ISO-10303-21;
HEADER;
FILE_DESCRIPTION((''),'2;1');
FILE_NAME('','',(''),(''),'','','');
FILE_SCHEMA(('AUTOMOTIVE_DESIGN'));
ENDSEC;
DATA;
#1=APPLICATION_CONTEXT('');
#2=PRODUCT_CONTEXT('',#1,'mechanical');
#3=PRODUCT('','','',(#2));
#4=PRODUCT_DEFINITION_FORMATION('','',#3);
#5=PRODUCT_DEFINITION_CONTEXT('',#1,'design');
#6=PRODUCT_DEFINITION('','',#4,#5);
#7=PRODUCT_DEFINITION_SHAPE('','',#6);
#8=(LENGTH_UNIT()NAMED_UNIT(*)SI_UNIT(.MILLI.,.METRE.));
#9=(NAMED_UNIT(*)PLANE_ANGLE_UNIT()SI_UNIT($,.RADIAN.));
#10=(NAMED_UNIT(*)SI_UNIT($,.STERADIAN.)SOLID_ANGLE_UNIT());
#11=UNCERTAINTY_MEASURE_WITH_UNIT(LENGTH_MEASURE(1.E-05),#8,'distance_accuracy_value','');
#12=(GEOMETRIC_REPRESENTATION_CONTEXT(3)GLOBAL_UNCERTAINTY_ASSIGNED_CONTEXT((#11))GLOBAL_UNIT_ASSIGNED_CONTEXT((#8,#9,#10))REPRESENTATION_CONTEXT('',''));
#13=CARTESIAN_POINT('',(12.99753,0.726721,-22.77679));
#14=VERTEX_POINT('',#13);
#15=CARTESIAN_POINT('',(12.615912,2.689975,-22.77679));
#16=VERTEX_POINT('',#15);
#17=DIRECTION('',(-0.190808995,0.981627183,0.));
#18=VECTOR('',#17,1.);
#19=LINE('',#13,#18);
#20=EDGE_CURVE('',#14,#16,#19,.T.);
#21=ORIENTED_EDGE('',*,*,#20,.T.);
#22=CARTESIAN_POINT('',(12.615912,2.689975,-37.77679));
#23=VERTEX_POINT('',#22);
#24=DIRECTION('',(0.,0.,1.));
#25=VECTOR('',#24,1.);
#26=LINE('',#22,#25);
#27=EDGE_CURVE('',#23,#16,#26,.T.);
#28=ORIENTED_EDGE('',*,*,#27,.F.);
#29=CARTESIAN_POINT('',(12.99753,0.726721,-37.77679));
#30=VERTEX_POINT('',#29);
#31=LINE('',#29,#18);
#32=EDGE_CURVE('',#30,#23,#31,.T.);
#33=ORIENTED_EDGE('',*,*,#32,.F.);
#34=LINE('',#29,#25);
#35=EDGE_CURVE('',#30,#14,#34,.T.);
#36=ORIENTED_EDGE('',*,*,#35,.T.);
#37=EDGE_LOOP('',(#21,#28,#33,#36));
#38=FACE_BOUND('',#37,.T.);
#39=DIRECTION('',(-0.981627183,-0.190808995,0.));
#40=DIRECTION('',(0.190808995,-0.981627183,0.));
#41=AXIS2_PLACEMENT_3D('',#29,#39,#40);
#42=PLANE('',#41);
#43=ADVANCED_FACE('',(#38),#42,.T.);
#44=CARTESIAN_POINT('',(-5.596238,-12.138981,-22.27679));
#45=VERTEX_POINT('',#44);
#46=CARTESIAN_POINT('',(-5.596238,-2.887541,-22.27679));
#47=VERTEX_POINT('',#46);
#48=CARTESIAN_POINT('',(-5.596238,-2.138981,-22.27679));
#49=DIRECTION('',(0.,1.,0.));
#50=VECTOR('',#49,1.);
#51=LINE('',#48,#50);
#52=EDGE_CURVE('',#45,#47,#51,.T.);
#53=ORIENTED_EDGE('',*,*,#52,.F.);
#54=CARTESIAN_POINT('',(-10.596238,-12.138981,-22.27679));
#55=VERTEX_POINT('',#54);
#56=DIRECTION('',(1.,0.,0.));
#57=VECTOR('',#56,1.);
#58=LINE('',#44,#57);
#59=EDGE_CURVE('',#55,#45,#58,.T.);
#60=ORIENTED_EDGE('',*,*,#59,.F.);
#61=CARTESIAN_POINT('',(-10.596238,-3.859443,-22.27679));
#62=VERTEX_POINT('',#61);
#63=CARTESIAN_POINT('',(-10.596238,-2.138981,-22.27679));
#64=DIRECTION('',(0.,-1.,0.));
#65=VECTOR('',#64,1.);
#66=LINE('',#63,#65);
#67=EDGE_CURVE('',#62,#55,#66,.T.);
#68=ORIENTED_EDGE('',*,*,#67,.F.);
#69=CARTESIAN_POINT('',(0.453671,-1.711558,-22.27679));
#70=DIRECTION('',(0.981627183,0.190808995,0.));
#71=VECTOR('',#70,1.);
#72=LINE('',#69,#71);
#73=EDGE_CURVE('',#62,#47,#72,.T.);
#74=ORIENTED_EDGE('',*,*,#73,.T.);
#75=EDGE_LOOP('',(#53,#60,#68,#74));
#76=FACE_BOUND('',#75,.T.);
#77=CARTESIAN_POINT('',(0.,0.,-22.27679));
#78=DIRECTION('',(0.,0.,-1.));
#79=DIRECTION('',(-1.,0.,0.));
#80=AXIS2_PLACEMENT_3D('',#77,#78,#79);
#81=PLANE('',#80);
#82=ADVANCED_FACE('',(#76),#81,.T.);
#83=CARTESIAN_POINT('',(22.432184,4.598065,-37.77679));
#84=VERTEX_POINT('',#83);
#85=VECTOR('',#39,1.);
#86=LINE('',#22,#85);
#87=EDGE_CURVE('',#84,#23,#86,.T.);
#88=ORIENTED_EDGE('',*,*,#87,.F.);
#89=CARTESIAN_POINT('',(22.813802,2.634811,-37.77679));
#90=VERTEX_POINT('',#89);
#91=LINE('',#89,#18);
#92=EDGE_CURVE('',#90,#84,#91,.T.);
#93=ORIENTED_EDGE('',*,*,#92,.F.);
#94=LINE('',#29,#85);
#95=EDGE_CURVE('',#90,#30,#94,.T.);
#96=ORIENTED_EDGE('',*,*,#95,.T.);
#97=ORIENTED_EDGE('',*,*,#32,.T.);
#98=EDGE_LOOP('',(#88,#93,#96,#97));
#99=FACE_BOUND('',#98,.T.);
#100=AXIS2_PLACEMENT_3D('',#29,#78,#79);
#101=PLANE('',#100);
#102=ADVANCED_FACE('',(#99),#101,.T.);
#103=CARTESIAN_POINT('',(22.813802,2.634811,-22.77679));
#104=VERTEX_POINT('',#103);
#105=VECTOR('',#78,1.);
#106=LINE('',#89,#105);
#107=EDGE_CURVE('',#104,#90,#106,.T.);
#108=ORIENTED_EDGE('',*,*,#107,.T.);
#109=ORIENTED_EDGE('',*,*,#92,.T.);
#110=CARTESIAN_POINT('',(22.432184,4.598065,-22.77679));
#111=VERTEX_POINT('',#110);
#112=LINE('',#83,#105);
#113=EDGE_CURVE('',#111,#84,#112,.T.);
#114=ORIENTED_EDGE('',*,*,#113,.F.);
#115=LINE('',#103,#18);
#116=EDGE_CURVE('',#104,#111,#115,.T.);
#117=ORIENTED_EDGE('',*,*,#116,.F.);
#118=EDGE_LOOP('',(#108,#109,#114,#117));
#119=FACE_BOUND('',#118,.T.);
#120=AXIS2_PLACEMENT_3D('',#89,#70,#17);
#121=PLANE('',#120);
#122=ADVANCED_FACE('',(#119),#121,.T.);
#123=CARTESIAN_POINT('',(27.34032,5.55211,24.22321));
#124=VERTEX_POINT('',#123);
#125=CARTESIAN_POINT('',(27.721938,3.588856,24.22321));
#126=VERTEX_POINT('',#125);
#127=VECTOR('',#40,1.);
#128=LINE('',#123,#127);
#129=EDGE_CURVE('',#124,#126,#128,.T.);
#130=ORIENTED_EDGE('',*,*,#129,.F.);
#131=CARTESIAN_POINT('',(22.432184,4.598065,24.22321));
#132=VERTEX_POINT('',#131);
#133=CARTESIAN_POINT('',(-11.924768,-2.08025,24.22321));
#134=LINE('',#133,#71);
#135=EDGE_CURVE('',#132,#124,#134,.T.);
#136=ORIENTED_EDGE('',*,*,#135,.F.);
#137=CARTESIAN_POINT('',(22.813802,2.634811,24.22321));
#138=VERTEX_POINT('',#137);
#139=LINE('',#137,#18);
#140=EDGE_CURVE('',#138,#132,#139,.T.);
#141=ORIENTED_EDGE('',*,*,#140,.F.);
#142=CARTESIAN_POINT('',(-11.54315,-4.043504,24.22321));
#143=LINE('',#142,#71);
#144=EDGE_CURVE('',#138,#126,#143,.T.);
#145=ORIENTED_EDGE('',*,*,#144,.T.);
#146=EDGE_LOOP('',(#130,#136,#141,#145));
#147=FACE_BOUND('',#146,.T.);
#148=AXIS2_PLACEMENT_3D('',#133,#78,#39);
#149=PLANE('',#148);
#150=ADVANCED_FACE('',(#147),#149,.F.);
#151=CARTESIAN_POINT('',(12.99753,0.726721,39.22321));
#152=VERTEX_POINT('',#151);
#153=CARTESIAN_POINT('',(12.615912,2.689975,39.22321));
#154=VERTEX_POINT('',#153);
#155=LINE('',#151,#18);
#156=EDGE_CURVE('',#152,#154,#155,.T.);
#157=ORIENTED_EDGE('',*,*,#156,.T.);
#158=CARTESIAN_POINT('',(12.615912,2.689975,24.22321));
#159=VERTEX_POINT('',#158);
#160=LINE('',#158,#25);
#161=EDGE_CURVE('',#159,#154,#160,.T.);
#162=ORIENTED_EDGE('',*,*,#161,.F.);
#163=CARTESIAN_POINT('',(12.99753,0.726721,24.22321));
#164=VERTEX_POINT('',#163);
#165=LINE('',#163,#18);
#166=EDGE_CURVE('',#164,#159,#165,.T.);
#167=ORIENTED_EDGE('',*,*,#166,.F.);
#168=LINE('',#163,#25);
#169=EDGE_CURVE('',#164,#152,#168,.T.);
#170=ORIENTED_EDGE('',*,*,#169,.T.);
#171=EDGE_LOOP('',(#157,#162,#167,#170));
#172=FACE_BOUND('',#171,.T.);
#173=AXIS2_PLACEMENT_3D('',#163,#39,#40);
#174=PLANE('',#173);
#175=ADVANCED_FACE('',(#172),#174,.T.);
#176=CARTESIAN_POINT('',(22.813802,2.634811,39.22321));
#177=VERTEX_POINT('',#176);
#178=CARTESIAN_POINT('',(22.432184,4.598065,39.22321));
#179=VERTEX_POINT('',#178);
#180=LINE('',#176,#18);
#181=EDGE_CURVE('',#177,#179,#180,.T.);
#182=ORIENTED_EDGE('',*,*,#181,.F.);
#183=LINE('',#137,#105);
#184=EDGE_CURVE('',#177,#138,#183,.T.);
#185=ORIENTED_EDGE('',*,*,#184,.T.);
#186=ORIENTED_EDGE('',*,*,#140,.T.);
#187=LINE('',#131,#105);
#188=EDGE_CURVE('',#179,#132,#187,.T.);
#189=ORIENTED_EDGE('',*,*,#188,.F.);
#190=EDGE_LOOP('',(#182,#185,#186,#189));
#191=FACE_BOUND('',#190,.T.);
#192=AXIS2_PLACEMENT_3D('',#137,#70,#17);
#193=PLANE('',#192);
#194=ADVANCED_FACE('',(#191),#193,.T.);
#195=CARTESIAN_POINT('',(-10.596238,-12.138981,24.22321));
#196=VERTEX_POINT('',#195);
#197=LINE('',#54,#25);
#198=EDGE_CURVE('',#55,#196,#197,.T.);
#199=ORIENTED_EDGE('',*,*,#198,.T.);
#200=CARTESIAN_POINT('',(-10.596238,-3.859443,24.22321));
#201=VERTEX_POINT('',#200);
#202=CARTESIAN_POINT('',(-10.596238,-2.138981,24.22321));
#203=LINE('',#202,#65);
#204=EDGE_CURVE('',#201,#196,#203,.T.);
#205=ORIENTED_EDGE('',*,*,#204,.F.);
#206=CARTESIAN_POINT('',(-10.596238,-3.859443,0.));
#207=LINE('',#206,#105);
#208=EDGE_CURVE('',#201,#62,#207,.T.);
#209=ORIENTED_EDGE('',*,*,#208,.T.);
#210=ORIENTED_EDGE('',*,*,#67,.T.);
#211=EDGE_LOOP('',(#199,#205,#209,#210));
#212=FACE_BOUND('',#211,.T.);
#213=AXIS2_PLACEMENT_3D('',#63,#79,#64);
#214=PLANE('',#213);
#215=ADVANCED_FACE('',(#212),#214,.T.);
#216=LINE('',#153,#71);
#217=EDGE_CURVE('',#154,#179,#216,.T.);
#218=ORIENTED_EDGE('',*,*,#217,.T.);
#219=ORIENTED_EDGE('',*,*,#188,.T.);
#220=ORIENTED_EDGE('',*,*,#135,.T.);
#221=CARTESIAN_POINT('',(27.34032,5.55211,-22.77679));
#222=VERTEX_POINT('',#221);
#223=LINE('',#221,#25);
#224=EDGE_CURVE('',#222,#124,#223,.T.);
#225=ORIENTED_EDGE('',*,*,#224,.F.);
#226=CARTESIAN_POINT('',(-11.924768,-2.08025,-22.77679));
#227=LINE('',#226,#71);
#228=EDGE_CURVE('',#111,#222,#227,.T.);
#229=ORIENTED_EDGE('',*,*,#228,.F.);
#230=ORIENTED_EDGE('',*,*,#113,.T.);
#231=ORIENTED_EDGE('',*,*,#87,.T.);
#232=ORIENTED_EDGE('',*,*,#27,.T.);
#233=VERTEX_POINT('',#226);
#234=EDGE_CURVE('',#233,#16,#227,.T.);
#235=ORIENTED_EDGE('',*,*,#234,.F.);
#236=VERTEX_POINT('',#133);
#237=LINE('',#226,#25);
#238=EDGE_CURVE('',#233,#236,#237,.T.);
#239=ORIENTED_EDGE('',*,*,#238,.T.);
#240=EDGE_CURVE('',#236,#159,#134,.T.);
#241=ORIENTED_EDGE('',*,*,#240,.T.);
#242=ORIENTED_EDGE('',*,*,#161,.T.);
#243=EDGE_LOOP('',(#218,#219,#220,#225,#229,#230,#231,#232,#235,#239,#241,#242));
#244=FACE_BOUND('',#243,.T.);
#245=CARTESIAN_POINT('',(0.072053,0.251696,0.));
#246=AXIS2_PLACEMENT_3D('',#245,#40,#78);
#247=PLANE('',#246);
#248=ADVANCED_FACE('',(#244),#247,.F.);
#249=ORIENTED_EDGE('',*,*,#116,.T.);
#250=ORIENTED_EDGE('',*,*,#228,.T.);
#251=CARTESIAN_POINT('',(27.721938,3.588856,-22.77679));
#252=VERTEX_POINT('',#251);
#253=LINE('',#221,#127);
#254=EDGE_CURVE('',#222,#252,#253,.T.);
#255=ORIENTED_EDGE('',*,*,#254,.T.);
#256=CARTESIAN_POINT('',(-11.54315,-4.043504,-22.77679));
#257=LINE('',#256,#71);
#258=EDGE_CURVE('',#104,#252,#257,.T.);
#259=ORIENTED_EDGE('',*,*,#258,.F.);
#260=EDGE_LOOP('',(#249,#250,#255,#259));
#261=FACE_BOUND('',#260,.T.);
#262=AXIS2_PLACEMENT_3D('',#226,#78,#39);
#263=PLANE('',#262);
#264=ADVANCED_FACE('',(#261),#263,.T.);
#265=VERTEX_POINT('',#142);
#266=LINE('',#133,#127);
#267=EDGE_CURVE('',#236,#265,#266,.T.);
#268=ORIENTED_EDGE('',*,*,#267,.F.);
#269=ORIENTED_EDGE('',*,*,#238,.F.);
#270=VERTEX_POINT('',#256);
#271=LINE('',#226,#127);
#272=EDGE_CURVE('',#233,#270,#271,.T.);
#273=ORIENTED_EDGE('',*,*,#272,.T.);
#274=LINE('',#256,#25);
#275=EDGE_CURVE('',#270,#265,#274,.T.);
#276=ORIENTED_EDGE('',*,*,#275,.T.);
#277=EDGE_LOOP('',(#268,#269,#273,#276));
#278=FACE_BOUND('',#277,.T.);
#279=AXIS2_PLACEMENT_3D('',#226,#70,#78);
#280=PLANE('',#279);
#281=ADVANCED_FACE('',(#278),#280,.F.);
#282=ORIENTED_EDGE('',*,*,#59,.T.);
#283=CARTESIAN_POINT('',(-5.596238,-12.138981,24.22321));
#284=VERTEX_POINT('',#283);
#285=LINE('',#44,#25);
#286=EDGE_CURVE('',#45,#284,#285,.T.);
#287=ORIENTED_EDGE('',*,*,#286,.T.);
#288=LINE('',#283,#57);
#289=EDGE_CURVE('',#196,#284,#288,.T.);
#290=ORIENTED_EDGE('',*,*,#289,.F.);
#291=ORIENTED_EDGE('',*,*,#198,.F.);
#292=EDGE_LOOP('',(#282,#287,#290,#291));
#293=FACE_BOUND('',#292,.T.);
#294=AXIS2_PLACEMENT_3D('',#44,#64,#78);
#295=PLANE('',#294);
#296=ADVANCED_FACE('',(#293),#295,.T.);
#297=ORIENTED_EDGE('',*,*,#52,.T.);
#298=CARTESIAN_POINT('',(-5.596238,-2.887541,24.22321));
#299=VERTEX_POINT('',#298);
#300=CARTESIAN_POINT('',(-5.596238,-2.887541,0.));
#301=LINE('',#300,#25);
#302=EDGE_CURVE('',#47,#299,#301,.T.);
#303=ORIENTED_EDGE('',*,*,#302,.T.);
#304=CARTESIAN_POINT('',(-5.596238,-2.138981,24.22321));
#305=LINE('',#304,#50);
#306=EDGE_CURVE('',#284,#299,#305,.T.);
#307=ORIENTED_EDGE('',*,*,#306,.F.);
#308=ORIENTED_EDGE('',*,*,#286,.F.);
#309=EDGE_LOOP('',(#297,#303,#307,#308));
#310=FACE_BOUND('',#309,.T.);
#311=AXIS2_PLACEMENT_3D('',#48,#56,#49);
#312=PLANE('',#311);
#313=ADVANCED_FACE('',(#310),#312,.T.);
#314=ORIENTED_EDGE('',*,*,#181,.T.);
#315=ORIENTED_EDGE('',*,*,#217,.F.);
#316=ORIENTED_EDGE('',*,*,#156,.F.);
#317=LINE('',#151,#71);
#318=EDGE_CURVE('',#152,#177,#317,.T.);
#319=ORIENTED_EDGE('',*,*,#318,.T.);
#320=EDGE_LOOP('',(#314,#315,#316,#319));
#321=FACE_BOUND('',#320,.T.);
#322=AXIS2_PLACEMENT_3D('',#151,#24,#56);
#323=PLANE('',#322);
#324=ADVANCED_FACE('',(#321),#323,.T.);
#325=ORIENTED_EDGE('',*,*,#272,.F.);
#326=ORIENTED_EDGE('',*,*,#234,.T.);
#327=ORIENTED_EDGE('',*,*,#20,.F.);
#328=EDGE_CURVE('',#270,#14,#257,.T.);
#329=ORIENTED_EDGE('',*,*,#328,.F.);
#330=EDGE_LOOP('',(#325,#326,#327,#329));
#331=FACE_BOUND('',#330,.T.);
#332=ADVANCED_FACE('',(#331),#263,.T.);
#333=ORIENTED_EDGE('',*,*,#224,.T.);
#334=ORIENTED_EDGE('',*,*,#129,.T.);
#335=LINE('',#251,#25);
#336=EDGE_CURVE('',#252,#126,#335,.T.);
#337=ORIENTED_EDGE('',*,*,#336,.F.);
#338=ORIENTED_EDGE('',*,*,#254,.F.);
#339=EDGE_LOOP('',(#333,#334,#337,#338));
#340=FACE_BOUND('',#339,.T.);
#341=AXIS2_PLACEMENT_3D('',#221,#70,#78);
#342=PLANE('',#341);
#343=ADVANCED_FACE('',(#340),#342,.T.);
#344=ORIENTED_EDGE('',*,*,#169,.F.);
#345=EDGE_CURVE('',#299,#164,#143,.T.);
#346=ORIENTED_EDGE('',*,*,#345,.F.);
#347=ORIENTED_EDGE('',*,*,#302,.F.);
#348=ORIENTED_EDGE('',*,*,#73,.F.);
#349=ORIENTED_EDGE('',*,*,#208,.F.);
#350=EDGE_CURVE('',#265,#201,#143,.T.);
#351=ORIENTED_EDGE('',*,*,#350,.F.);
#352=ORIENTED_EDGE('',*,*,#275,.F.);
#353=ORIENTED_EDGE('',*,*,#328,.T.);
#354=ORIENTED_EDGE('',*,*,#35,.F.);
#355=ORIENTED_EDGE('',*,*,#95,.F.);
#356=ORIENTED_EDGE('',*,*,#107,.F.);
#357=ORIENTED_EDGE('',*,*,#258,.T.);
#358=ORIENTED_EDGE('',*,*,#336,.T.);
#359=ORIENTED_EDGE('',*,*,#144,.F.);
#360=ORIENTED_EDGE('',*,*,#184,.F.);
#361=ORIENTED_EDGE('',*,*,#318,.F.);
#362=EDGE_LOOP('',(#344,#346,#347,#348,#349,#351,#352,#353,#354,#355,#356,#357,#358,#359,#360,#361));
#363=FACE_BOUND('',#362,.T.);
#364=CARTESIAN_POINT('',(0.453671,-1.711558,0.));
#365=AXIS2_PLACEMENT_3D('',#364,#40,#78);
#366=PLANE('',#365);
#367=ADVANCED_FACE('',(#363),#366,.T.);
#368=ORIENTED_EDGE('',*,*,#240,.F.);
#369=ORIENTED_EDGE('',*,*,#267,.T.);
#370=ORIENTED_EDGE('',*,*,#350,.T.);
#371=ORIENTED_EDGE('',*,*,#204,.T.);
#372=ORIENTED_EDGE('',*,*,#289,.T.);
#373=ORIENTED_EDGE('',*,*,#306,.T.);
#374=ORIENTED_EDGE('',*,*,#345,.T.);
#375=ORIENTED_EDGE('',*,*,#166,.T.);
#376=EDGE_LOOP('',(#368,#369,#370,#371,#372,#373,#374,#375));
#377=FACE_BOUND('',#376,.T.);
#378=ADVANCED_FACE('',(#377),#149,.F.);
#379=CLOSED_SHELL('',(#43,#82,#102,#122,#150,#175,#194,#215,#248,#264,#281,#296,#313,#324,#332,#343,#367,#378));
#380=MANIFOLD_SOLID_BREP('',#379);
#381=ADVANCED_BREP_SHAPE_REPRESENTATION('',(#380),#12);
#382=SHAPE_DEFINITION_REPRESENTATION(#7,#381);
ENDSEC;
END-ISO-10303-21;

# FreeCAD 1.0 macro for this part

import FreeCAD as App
import Part
import Sketcher
from FreeCAD import Vector
Q = App.Units.Quantity

doc = App.newDocument("Part")
body = doc.addObject("PartDesign::Body", "Body")

# Sketch on XZ plane
sketch1 = body.newObject("Sketcher::SketchObject", "Sketch")
sketch1.AttachmentSupport = (doc.getObject("XZ_Plane"), [""])
sketch1.MapMode = "FlatFace"
sketch1.addGeometry([
    Part.LineSegment(Vector(-12, -23, 0), Vector(-12, 24, 0)),
    Part.LineSegment(Vector(-12, 24, 0), Vector(28, 24, 0)),
    Part.LineSegment(Vector(28, 24, 0), Vector(28, -23, 0)),
    Part.LineSegment(Vector(28, -23, 0), Vector(-12, -23, 0)),
], False)
sketch1.addConstraint([
    Sketcher.Constraint("Coincident", 0, 2, 1, 1),
    Sketcher.Constraint("Coincident", 1, 2, 2, 1),
    Sketcher.Constraint("Coincident", 2, 2, 3, 1),
    Sketcher.Constraint("Coincident", 3, 2, 0, 1),
    Sketcher.Constraint("Vertical", 0),
    Sketcher.Constraint("Horizontal", 1),
    Sketcher.Constraint("Vertical", 2),
    Sketcher.Constraint("Horizontal", 3),
    Sketcher.Constraint("DistanceX", 1, 1, 1, 2, Q("40 mm")),
    Sketcher.Constraint("DistanceY", 0, 1, 0, 2, Q("47 mm")),
    Sketcher.Constraint("DistanceX", 0, 2, -1, 1, Q("12.221362 mm")),
    Sketcher.Constraint("DistanceY", -1, 1, 0, 2, Q("24.22321 mm")),
])
pad1 = body.newObject("PartDesign::Pad", "Pad")
pad1.Profile = sketch1
pad1.Length = 2
pad1.Reversed = True
body2 = doc.addObject("PartDesign::Body", "Body001")
doc.recompute()

body.Placement = App.Placement(Vector(0.453671, -1.711558, 0), App.Rotation(Vector(0, 0, 1), 11))
boolean = body2.newObject("PartDesign::Boolean", "Boolean")
boolean.Type = "Fuse"
boolean.addObjects([body])

# Sketch on XY plane
sketch2 = body2.newObject("Sketcher::SketchObject", "Sketch001")
sketch2.AttachmentSupport = (doc.getObject("XY_Plane001"), [""])
sketch2.MapMode = "FlatFace"
sketch2.AttachmentOffset = App.Placement(Vector(0, 0, 24.22321), App.Rotation())
sketch2.addGeometry([
    Part.LineSegment(Vector(-11, -2, 0), Vector(-11, -12, 0)),
    Part.LineSegment(Vector(-11, -12, 0), Vector(-6, -12, 0)),
    Part.LineSegment(Vector(-6, -12, 0), Vector(-6, -2, 0)),
    Part.LineSegment(Vector(-6, -2, 0), Vector(-11, -2, 0)),
], False)
sketch2.addConstraint([
    Sketcher.Constraint("Coincident", 0, 2, 1, 1),
    Sketcher.Constraint("Coincident", 1, 2, 2, 1),
    Sketcher.Constraint("Coincident", 2, 2, 3, 1),
    Sketcher.Constraint("Coincident", 3, 2, 0, 1),
    Sketcher.Constraint("Vertical", 0),
    Sketcher.Constraint("Horizontal", 1),
    Sketcher.Constraint("Vertical", 2),
    Sketcher.Constraint("Horizontal", 3),
    Sketcher.Constraint("DistanceX", 1, 1, 1, 2, Q("5 mm")),
    Sketcher.Constraint("DistanceY", 0, 2, 0, 1, Q("10 mm")),
    Sketcher.Constraint("DistanceY", 0, 2, -1, 1, Q("12.138981 mm")),
    Sketcher.Constraint("DistanceX", 0, 2, -1, 1, Q("10.596238 mm")),
])
pad2 = body2.newObject("PartDesign::Pad", "Pad001")
pad2.Profile = sketch2
pad2.Length = 46.5
pad2.Reversed = True

# Sketch on an angled plane
sketch3 = body2.newObject("Sketcher::SketchObject", "Sketch002")
sketch3.Placement = App.Placement(Vector(-0.04452, 0.229037, 0), App.Rotation(Vector(0.981627183, 0.190808995, 0), Vector(0, 0, -0.999999999), Vector(-0.190808995, 0.981627183, 0), "ZXY"))
sketch3.addGeometry([
    Part.LineSegment(Vector(13, -24, 0), Vector(13, -39, 0)),
    Part.LineSegment(Vector(13, -39, 0), Vector(23, -39, 0)),
    Part.LineSegment(Vector(23, -39, 0), Vector(23, -24, 0)),
    Part.LineSegment(Vector(23, -24, 0), Vector(13, -24, 0)),
], False)
sketch3.addConstraint([
    Sketcher.Constraint("Coincident", 0, 2, 1, 1),
    Sketcher.Constraint("Coincident", 1, 2, 2, 1),
    Sketcher.Constraint("Coincident", 2, 2, 3, 1),
    Sketcher.Constraint("Coincident", 3, 2, 0, 1),
    Sketcher.Constraint("Vertical", 0),
    Sketcher.Constraint("Horizontal", 1),
    Sketcher.Constraint("Vertical", 2),
    Sketcher.Constraint("Horizontal", 3),
    Sketcher.Constraint("DistanceX", 1, 1, 1, 2, Q("10 mm")),
    Sketcher.Constraint("DistanceY", 0, 2, 0, 1, Q("15 mm")),
    Sketcher.Constraint("DistanceY", 0, 2, -1, 1, Q("39.22321 mm")),
    Sketcher.Constraint("DistanceX", -1, 1, 0, 2, Q("12.897394 mm")),
])
pad3 = body2.newObject("PartDesign::Pad", "Pad002")
pad3.Profile = sketch3
pad3.Length = 2
pad3.Reversed = True

# Sketch on an angled plane
sketch4 = body2.newObject("Sketcher::SketchObject", "Sketch003")
sketch4.Placement = App.Placement(Vector(-0.04452, 0.229037, 0), App.Rotation(Vector(0.981627183, 0.190808995, 0), Vector(0, 0, -0.999999999), Vector(-0.190808995, 0.981627183, 0), "ZXY"))
sketch4.addGeometry([
    Part.LineSegment(Vector(13, 38, 0), Vector(13, 23, 0)),
    Part.LineSegment(Vector(13, 23, 0), Vector(23, 23, 0)),
    Part.LineSegment(Vector(23, 23, 0), Vector(23, 38, 0)),
    Part.LineSegment(Vector(23, 38, 0), Vector(13, 38, 0)),
], False)
sketch4.addConstraint([
    Sketcher.Constraint("Coincident", 0, 2, 1, 1),
    Sketcher.Constraint("Coincident", 1, 2, 2, 1),
    Sketcher.Constraint("Coincident", 2, 2, 3, 1),
    Sketcher.Constraint("Coincident", 3, 2, 0, 1),
    Sketcher.Constraint("Vertical", 0),
    Sketcher.Constraint("Horizontal", 1),
    Sketcher.Constraint("Vertical", 2),
    Sketcher.Constraint("Horizontal", 3),
    Sketcher.Constraint("DistanceX", 1, 1, 1, 2, Q("10 mm")),
    Sketcher.Constraint("DistanceY", 0, 2, 0, 1, Q("15 mm")),
    Sketcher.Constraint("DistanceY", -1, 1, 0, 2, Q("22.77679 mm")),
    Sketcher.Constraint("DistanceX", -1, 1, 0, 2, Q("12.897394 mm")),
])
pad4 = body2.newObject("PartDesign::Pad", "Pad003")
pad4.Profile = sketch4
pad4.Length = 2
pad4.Reversed = True

doc.recompute()
